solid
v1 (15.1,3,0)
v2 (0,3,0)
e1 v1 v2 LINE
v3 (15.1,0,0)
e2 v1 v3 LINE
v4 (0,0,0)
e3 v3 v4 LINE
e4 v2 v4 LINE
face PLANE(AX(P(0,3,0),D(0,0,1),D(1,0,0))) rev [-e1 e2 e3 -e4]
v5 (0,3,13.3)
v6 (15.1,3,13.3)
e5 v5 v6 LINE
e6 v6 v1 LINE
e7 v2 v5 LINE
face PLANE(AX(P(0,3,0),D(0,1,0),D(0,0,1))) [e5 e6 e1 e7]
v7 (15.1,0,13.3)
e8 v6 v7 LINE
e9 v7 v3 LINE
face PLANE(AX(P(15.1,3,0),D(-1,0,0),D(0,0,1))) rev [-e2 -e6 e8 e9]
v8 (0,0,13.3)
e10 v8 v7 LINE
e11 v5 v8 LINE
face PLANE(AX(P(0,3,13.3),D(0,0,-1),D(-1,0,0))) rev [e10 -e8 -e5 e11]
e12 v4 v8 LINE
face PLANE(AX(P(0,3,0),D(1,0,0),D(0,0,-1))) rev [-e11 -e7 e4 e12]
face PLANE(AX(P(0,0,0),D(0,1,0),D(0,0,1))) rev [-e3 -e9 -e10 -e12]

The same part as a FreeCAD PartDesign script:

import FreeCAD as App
import Part
import Sketcher

V = App.Vector
Q = App.Units.Quantity


def add_polygon(sketch, points):
    """Adds a closed chain of lines whose ends are joined by coincident constraints."""
    first, n = sketch.GeometryCount, len(points)
    for a, b in zip(points, points[1:] + points[:1]):
        sketch.addGeometry(Part.LineSegment(App.Vector(*a, 0), App.Vector(*b, 0)), False)
    for i in range(n):
        sketch.addConstraint(Sketcher.Constraint("Coincident", first + i, 2, first + (i + 1) % n, 1))

doc = App.newDocument("Part")
params = doc.addObject("Spreadsheet::Sheet", "Params")
for row, (alias, value) in enumerate([
    ("sketch1_width", "15.1 mm"),
    ("sketch1_height", "13.3 mm"),
    ("pad1_length", "3 mm"),
], start=1):
    params.set(f"A{row}", alias)
    params.set(f"B{row}", "=" + value)
    params.setAlias(f"B{row}", alias)

body = doc.addObject("PartDesign::Body", "Body")

# Sketch on XZ plane
sketch1 = doc.addObject("Sketcher::SketchObject", "Sketch")
body.addObject(sketch1)
sketch1.AttachmentSupport = (doc.XZ_Plane, [""])
sketch1.MapMode = "FlatFace"
add_polygon(sketch1, [(0, 0), (0, 13), (15, 13), (15, 0)])  # lines 0-3
sketch1.addConstraint(Sketcher.Constraint("Vertical", 0))
sketch1.addConstraint(Sketcher.Constraint("Horizontal", 1))
sketch1.addConstraint(Sketcher.Constraint("Vertical", 2))
sketch1.addConstraint(Sketcher.Constraint("Horizontal", 3))
sketch1.addConstraint(Sketcher.Constraint("Coincident", 3, 2, -1, 1))
sketch1.addConstraint(Sketcher.Constraint("DistanceX", 1, 1, 1, 2, Q("15.1 mm")))
sketch1.addConstraint(Sketcher.Constraint("DistanceY", 0, 1, 0, 2, Q("13.3 mm")))
sketch1.setExpression("Constraints[9]", "Params.sketch1_width")
sketch1.setExpression("Constraints[10]", "Params.sketch1_height")
pad1 = doc.addObject("PartDesign::Pad", "Pad")
body.addObject(pad1)
pad1.Profile = sketch1
pad1.setExpression("Length", "Params.pad1_length")
pad1.Reversed = True

doc.recompute()
